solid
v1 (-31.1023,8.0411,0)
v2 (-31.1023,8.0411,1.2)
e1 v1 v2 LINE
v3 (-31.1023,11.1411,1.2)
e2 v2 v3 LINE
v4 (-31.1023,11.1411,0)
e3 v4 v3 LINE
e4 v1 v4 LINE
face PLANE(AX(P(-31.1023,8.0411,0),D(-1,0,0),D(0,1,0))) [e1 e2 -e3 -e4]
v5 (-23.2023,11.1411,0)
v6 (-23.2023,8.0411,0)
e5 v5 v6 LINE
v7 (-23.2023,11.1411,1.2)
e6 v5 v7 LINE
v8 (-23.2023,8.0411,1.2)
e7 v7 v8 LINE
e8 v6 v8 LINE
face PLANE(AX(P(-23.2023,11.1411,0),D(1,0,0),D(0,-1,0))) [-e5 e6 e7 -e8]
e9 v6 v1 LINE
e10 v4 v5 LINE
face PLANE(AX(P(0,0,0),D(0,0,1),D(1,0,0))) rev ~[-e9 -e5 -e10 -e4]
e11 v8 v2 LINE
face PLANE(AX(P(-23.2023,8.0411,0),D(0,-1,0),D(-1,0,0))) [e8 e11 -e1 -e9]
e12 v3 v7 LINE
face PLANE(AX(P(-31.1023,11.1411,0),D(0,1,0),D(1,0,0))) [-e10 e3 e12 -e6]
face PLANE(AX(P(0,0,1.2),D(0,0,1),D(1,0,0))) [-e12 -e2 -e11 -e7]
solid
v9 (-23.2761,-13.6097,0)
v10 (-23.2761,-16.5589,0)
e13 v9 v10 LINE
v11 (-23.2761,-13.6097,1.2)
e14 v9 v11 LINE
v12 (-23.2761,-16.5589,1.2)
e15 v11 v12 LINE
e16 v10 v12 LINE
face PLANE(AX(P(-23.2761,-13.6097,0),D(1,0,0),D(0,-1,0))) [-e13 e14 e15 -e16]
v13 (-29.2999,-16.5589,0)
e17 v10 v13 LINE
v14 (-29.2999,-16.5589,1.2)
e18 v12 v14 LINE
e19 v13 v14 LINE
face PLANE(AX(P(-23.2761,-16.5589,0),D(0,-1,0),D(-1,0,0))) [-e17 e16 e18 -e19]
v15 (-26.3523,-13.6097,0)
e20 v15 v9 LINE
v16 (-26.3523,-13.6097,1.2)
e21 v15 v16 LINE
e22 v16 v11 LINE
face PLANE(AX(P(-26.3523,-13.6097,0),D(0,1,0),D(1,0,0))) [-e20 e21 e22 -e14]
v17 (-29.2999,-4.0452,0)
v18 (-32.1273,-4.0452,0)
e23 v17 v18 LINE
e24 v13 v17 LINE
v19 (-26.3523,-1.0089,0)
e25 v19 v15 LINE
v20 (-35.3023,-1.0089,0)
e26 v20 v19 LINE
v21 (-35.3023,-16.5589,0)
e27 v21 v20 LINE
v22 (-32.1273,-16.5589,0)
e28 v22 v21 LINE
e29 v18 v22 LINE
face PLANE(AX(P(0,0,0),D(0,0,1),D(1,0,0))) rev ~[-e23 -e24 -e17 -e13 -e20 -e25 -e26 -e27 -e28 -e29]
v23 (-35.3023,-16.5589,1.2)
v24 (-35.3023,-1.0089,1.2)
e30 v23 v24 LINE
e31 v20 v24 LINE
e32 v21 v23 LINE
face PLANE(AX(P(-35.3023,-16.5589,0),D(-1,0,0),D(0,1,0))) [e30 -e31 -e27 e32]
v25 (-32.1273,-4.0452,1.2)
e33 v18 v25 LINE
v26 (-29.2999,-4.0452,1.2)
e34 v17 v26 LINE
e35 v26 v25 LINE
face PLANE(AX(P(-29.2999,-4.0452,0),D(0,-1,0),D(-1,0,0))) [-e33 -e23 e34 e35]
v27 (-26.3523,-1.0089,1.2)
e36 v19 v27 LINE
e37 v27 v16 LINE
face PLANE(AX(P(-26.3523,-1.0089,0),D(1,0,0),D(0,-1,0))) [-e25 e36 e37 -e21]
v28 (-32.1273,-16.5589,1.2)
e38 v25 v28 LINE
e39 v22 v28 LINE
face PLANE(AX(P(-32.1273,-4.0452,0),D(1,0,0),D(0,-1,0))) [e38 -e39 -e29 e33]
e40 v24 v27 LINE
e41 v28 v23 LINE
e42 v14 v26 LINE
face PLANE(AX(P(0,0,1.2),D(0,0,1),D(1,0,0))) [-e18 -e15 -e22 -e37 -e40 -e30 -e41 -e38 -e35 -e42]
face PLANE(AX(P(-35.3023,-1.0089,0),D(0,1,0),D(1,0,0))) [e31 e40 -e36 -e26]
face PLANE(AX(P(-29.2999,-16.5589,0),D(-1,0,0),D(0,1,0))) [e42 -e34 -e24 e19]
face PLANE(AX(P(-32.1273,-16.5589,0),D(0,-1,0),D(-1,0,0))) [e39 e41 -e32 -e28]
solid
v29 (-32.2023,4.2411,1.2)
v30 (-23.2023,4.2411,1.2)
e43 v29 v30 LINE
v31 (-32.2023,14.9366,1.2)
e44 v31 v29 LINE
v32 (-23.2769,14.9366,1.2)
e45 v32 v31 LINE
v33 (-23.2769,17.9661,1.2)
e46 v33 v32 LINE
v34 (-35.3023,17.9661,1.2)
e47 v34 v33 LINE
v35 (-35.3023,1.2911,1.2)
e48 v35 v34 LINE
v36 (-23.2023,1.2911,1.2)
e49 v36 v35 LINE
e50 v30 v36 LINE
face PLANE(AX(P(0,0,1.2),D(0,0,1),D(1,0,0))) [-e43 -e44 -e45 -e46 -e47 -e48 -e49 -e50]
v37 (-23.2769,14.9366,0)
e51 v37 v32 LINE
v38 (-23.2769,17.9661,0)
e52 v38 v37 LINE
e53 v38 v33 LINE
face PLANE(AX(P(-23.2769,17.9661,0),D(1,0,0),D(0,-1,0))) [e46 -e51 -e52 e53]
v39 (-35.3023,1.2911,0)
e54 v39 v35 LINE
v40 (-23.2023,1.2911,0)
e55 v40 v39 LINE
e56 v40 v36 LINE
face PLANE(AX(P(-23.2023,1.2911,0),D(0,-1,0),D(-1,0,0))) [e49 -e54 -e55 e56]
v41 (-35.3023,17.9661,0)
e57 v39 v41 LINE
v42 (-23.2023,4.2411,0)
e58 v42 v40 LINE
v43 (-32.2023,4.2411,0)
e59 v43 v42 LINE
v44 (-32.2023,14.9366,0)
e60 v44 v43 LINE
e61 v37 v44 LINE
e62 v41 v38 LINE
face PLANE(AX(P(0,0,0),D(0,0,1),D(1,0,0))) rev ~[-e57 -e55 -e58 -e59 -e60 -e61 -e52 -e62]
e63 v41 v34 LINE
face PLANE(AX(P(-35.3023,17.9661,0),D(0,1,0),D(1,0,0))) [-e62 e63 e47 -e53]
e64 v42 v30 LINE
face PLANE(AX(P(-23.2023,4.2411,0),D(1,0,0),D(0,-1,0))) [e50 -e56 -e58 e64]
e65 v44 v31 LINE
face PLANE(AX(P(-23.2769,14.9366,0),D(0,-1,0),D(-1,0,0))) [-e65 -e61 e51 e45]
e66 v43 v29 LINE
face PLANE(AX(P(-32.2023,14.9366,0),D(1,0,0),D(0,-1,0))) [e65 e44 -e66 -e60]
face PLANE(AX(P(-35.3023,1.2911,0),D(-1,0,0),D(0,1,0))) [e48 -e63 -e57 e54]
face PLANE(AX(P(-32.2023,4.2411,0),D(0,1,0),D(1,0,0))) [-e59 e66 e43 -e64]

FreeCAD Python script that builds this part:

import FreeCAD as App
import Part
import Sketcher
from FreeCAD import Vector
Q = App.Units.Quantity


def add_polygon(sketch, points):
    """Adds a closed chain of lines whose ends are joined by coincident constraints."""
    first, n = sketch.GeometryCount, len(points)
    for a, b in zip(points, points[1:] + points[:1]):
        sketch.addGeometry(Part.LineSegment(App.Vector(*a, 0), App.Vector(*b, 0)), False)
    for i in range(n):
        sketch.addConstraint(Sketcher.Constraint("Coincident", first + i, 2, first + (i + 1) % n, 1))

doc = App.newDocument("Part")
body = doc.addObject("PartDesign::Body", "Body")
body.AllowCompound = True

# Sketch on XY plane
sketch1 = body.newObject("Sketcher::SketchObject", "Sketch")
sketch1.AttachmentSupport = (doc.getObject("XY_Plane"), [""])
sketch1.MapMode = "FlatFace"
add_polygon(sketch1, [(-23.3, 14.9), (-23.3, 18), (-35.3, 18), (-35.3, 1.3), (-23.2, 1.3), (-23.2, 4.2), (-32.2, 4.2), (-32.2, 14.9)])  # lines 0-7
add_polygon(sketch1, [(-23.2, 8), (-23.2, 11.1), (-31.1, 11.1), (-31.1, 8)])  # lines 8-11
add_polygon(sketch1, [(-32.1, -4), (-29.3, -4), (-29.3, -16.6), (-23.3, -16.6), (-23.3, -13.6), (-26.4, -13.6), (-26.4, -1), (-35.3, -1), (-35.3, -16.6), (-32.1, -16.6)])  # lines 12-21
sketch1.addConstraint(Sketcher.Constraint("Vertical", 0))
sketch1.addConstraint(Sketcher.Constraint("Horizontal", 1))
sketch1.addConstraint(Sketcher.Constraint("Vertical", 2))
sketch1.addConstraint(Sketcher.Constraint("Horizontal", 3))
sketch1.addConstraint(Sketcher.Constraint("Vertical", 4))
sketch1.addConstraint(Sketcher.Constraint("Horizontal", 5))
sketch1.addConstraint(Sketcher.Constraint("Vertical", 6))
sketch1.addConstraint(Sketcher.Constraint("Horizontal", 7))
sketch1.addConstraint(Sketcher.Constraint("Vertical", 8))
sketch1.addConstraint(Sketcher.Constraint("Horizontal", 9))
sketch1.addConstraint(Sketcher.Constraint("Vertical", 10))
sketch1.addConstraint(Sketcher.Constraint("Horizontal", 11))
sketch1.addConstraint(Sketcher.Constraint("Horizontal", 12))
sketch1.addConstraint(Sketcher.Constraint("Vertical", 13))
sketch1.addConstraint(Sketcher.Constraint("Horizontal", 14))
sketch1.addConstraint(Sketcher.Constraint("Vertical", 15))
sketch1.addConstraint(Sketcher.Constraint("Horizontal", 16))
sketch1.addConstraint(Sketcher.Constraint("Vertical", 17))
sketch1.addConstraint(Sketcher.Constraint("Horizontal", 18))
sketch1.addConstraint(Sketcher.Constraint("Vertical", 19))
sketch1.addConstraint(Sketcher.Constraint("Horizontal", 20))
sketch1.addConstraint(Sketcher.Constraint("Vertical", 21))
sketch1.addConstraint(Sketcher.Constraint("Horizontal", 14, 2, 19, 2))
sketch1.addConstraint(Sketcher.Constraint("Vertical", 4, 2, 8, 2))
sketch1.addConstraint(Sketcher.Constraint("Vertical", 2, 2, 18, 2))
sketch1.addConstraint(Sketcher.Constraint("DistanceX", 5, 2, 5, 1, Q("9 mm")))
sketch1.addConstraint(Sketcher.Constraint("DistanceX", 3, 1, 3, 2, Q("12.1 mm")))
sketch1.addConstraint(Sketcher.Constraint("DistanceX", 9, 2, 9, 1, Q("7.9 mm")))
sketch1.addConstraint(Sketcher.Constraint("DistanceY", 8, 1, 8, 2, Q("3.1 mm")))
sketch1.addConstraint(Sketcher.Constraint("DistanceX", 18, 2, 18, 1, Q("8.95 mm")))
sketch1.addConstraint(Sketcher.Constraint("DistanceY", 4, 1, 4, 2, Q("2.95 mm")))
sketch1.addConstraint(Sketcher.Constraint("DistanceY", 19, 2, 19, 1, Q("15.55 mm")))
sketch1.addConstraint(Sketcher.Constraint("DistanceX", 12, 2, -1, 1, Q("29.3 mm")))
sketch1.addConstraint(Sketcher.Constraint("DistanceY", 4, 2, 8, 2, Q("6.9 mm")))
sketch1.addConstraint(Sketcher.Constraint("DistanceY", 13, 2, 5, 2, Q("20.8 mm")))
sketch1.addConstraint(Sketcher.Constraint("DistanceX", 20, 1, 20, 2, Q("3.175 mm")))
sketch1.addConstraint(Sketcher.Constraint("DistanceY", 2, 2, 2, 1, Q("16.675 mm")))
sketch1.addConstraint(Sketcher.Constraint("DistanceX", 1, 2, 1, 1, Q("12.0254 mm")))
sketch1.addConstraint(Sketcher.Constraint("DistanceX", 12, 1, 12, 2, Q("2.8274 mm")))
sketch1.addConstraint(Sketcher.Constraint("DistanceX", 14, 1, 14, 2, Q("6.0238 mm")))
sketch1.addConstraint(Sketcher.Constraint("DistanceY", 0, 1, 0, 2, Q("3.0295 mm")))
sketch1.addConstraint(Sketcher.Constraint("DistanceY", 13, 2, 13, 1, Q("12.5137 mm")))
sketch1.addConstraint(Sketcher.Constraint("DistanceY", 15, 1, 15, 2, Q("2.9492 mm")))
sketch1.addConstraint(Sketcher.Constraint("DistanceY", -1, 1, 0, 2, Q("17.966 mm")))
pad1 = body.newObject("PartDesign::Pad", "Pad")
pad1.Profile = sketch1
pad1.Length = 1.2

doc.recompute()
